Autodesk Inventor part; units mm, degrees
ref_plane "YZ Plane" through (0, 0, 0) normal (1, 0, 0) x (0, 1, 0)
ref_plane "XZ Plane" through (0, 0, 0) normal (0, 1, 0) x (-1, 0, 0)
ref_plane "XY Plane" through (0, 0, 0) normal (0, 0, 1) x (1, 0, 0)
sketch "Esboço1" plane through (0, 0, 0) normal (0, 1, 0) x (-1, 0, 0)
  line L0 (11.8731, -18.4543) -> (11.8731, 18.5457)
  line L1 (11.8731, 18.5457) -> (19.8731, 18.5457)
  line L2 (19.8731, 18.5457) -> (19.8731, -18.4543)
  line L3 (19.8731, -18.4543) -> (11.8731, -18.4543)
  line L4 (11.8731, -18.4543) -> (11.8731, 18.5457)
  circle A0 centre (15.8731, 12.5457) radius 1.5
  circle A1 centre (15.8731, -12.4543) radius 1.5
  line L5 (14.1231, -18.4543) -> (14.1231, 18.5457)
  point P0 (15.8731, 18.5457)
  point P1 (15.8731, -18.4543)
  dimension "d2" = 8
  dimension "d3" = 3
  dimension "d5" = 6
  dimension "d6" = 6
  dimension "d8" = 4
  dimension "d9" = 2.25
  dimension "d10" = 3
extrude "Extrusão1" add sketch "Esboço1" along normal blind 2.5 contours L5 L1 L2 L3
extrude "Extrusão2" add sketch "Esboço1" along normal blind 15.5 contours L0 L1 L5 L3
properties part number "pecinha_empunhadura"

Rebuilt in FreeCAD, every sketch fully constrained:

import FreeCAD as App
import Part
import Sketcher
from FreeCAD import Vector


def add_polygon(sketch, points):
    """Adds a closed chain of lines whose ends are joined by coincident constraints."""
    first, n = sketch.GeometryCount, len(points)
    for a, b in zip(points, points[1:] + points[:1]):
        sketch.addGeometry(Part.LineSegment(App.Vector(*a, 0), App.Vector(*b, 0)), False)
    for i in range(n):
        sketch.addConstraint(Sketcher.Constraint("Coincident", first + i, 2, first + (i + 1) % n, 1))

doc = App.newDocument("Part")
body = doc.addObject("PartDesign::Body", "Body")

sketch1 = body.newObject("Sketcher::SketchObject", "Sketch")
sketch1.AttachmentSupport = (doc.getObject("XZ_Plane"), [""])
sketch1.MapMode = "FlatFace"
add_polygon(sketch1, [(-14.1, 18.5), (-14.1, -18.5), (-19.9, -18.5), (-19.9, 18.5)])
sketch1.addGeometry(Part.Circle(Vector(-15.9, -12.5, 0), Vector(0, 0, 1), 1.5), False)
sketch1.addGeometry(Part.Circle(Vector(-15.9, 12.5, 0), Vector(0, 0, 1), 1.5), False)
sketch1.addConstraint(Sketcher.Constraint("Vertical", 0))
sketch1.addConstraint(Sketcher.Constraint("Horizontal", 1))
sketch1.addConstraint(Sketcher.Constraint("Vertical", 2))
sketch1.addConstraint(Sketcher.Constraint("Horizontal", 3))
sketch1.addConstraint(Sketcher.Constraint("Equal", 4, 5))
sketch1.addConstraint(Sketcher.Constraint("Vertical", 4, 3, 5, 3))
sketch1.addConstraint(Sketcher.Constraint("Diameter", 4, 3.0))
sketch1.addConstraint(Sketcher.Constraint("DistanceY", 0, 2, 4, 3, 6.0))
sketch1.addConstraint(Sketcher.Constraint("DistanceX", 1, 2, 4, 3, 4.0))
sketch1.addConstraint(Sketcher.Constraint("DistanceY", 5, 3, 2, 2, 6.0))
sketch1.addConstraint(Sketcher.Constraint("DistanceY", 0, 2, 0, 1, 37.0))
sketch1.addConstraint(Sketcher.Constraint("DistanceX", 1, 2, 1, 1, 5.75))
sketch1.addConstraint(Sketcher.Constraint("DistanceX", 4, 3, -1, 1, 15.873))
sketch1.addConstraint(Sketcher.Constraint("DistanceY", 4, 3, -1, 1, 12.4543))
pad1 = body.newObject("PartDesign::Pad", "Pad")
pad1.Profile = sketch1
pad1.Length = 2.5
pad1.Reversed = True

sketch2 = body.newObject("Sketcher::SketchObject", "Sketch001")
sketch2.AttachmentSupport = (doc.getObject("XZ_Plane"), [""])
sketch2.MapMode = "FlatFace"
add_polygon(sketch2, [(-11.9, 18.5), (-11.9, -18.5), (-14.1, -18.5), (-14.1, 18.5)])
sketch2.addConstraint(Sketcher.Constraint("Vertical", 0))
sketch2.addConstraint(Sketcher.Constraint("Horizontal", 1))
sketch2.addConstraint(Sketcher.Constraint("Vertical", 2))
sketch2.addConstraint(Sketcher.Constraint("Horizontal", 3))
sketch2.addConstraint(Sketcher.Constraint("DistanceX", 1, 2, 1, 1, 2.25))
sketch2.addConstraint(Sketcher.Constraint("DistanceY", 0, 2, 0, 1, 37.0))
sketch2.addConstraint(Sketcher.Constraint("DistanceX", 0, 2, -1, 1, 11.873))
sketch2.addConstraint(Sketcher.Constraint("DistanceY", 0, 2, -1, 1, 18.4543))
pad2 = body.newObject("PartDesign::Pad", "Pad001")
pad2.Profile = sketch2
pad2.Length = 15.5
pad2.Reversed = True

doc.recompute()
